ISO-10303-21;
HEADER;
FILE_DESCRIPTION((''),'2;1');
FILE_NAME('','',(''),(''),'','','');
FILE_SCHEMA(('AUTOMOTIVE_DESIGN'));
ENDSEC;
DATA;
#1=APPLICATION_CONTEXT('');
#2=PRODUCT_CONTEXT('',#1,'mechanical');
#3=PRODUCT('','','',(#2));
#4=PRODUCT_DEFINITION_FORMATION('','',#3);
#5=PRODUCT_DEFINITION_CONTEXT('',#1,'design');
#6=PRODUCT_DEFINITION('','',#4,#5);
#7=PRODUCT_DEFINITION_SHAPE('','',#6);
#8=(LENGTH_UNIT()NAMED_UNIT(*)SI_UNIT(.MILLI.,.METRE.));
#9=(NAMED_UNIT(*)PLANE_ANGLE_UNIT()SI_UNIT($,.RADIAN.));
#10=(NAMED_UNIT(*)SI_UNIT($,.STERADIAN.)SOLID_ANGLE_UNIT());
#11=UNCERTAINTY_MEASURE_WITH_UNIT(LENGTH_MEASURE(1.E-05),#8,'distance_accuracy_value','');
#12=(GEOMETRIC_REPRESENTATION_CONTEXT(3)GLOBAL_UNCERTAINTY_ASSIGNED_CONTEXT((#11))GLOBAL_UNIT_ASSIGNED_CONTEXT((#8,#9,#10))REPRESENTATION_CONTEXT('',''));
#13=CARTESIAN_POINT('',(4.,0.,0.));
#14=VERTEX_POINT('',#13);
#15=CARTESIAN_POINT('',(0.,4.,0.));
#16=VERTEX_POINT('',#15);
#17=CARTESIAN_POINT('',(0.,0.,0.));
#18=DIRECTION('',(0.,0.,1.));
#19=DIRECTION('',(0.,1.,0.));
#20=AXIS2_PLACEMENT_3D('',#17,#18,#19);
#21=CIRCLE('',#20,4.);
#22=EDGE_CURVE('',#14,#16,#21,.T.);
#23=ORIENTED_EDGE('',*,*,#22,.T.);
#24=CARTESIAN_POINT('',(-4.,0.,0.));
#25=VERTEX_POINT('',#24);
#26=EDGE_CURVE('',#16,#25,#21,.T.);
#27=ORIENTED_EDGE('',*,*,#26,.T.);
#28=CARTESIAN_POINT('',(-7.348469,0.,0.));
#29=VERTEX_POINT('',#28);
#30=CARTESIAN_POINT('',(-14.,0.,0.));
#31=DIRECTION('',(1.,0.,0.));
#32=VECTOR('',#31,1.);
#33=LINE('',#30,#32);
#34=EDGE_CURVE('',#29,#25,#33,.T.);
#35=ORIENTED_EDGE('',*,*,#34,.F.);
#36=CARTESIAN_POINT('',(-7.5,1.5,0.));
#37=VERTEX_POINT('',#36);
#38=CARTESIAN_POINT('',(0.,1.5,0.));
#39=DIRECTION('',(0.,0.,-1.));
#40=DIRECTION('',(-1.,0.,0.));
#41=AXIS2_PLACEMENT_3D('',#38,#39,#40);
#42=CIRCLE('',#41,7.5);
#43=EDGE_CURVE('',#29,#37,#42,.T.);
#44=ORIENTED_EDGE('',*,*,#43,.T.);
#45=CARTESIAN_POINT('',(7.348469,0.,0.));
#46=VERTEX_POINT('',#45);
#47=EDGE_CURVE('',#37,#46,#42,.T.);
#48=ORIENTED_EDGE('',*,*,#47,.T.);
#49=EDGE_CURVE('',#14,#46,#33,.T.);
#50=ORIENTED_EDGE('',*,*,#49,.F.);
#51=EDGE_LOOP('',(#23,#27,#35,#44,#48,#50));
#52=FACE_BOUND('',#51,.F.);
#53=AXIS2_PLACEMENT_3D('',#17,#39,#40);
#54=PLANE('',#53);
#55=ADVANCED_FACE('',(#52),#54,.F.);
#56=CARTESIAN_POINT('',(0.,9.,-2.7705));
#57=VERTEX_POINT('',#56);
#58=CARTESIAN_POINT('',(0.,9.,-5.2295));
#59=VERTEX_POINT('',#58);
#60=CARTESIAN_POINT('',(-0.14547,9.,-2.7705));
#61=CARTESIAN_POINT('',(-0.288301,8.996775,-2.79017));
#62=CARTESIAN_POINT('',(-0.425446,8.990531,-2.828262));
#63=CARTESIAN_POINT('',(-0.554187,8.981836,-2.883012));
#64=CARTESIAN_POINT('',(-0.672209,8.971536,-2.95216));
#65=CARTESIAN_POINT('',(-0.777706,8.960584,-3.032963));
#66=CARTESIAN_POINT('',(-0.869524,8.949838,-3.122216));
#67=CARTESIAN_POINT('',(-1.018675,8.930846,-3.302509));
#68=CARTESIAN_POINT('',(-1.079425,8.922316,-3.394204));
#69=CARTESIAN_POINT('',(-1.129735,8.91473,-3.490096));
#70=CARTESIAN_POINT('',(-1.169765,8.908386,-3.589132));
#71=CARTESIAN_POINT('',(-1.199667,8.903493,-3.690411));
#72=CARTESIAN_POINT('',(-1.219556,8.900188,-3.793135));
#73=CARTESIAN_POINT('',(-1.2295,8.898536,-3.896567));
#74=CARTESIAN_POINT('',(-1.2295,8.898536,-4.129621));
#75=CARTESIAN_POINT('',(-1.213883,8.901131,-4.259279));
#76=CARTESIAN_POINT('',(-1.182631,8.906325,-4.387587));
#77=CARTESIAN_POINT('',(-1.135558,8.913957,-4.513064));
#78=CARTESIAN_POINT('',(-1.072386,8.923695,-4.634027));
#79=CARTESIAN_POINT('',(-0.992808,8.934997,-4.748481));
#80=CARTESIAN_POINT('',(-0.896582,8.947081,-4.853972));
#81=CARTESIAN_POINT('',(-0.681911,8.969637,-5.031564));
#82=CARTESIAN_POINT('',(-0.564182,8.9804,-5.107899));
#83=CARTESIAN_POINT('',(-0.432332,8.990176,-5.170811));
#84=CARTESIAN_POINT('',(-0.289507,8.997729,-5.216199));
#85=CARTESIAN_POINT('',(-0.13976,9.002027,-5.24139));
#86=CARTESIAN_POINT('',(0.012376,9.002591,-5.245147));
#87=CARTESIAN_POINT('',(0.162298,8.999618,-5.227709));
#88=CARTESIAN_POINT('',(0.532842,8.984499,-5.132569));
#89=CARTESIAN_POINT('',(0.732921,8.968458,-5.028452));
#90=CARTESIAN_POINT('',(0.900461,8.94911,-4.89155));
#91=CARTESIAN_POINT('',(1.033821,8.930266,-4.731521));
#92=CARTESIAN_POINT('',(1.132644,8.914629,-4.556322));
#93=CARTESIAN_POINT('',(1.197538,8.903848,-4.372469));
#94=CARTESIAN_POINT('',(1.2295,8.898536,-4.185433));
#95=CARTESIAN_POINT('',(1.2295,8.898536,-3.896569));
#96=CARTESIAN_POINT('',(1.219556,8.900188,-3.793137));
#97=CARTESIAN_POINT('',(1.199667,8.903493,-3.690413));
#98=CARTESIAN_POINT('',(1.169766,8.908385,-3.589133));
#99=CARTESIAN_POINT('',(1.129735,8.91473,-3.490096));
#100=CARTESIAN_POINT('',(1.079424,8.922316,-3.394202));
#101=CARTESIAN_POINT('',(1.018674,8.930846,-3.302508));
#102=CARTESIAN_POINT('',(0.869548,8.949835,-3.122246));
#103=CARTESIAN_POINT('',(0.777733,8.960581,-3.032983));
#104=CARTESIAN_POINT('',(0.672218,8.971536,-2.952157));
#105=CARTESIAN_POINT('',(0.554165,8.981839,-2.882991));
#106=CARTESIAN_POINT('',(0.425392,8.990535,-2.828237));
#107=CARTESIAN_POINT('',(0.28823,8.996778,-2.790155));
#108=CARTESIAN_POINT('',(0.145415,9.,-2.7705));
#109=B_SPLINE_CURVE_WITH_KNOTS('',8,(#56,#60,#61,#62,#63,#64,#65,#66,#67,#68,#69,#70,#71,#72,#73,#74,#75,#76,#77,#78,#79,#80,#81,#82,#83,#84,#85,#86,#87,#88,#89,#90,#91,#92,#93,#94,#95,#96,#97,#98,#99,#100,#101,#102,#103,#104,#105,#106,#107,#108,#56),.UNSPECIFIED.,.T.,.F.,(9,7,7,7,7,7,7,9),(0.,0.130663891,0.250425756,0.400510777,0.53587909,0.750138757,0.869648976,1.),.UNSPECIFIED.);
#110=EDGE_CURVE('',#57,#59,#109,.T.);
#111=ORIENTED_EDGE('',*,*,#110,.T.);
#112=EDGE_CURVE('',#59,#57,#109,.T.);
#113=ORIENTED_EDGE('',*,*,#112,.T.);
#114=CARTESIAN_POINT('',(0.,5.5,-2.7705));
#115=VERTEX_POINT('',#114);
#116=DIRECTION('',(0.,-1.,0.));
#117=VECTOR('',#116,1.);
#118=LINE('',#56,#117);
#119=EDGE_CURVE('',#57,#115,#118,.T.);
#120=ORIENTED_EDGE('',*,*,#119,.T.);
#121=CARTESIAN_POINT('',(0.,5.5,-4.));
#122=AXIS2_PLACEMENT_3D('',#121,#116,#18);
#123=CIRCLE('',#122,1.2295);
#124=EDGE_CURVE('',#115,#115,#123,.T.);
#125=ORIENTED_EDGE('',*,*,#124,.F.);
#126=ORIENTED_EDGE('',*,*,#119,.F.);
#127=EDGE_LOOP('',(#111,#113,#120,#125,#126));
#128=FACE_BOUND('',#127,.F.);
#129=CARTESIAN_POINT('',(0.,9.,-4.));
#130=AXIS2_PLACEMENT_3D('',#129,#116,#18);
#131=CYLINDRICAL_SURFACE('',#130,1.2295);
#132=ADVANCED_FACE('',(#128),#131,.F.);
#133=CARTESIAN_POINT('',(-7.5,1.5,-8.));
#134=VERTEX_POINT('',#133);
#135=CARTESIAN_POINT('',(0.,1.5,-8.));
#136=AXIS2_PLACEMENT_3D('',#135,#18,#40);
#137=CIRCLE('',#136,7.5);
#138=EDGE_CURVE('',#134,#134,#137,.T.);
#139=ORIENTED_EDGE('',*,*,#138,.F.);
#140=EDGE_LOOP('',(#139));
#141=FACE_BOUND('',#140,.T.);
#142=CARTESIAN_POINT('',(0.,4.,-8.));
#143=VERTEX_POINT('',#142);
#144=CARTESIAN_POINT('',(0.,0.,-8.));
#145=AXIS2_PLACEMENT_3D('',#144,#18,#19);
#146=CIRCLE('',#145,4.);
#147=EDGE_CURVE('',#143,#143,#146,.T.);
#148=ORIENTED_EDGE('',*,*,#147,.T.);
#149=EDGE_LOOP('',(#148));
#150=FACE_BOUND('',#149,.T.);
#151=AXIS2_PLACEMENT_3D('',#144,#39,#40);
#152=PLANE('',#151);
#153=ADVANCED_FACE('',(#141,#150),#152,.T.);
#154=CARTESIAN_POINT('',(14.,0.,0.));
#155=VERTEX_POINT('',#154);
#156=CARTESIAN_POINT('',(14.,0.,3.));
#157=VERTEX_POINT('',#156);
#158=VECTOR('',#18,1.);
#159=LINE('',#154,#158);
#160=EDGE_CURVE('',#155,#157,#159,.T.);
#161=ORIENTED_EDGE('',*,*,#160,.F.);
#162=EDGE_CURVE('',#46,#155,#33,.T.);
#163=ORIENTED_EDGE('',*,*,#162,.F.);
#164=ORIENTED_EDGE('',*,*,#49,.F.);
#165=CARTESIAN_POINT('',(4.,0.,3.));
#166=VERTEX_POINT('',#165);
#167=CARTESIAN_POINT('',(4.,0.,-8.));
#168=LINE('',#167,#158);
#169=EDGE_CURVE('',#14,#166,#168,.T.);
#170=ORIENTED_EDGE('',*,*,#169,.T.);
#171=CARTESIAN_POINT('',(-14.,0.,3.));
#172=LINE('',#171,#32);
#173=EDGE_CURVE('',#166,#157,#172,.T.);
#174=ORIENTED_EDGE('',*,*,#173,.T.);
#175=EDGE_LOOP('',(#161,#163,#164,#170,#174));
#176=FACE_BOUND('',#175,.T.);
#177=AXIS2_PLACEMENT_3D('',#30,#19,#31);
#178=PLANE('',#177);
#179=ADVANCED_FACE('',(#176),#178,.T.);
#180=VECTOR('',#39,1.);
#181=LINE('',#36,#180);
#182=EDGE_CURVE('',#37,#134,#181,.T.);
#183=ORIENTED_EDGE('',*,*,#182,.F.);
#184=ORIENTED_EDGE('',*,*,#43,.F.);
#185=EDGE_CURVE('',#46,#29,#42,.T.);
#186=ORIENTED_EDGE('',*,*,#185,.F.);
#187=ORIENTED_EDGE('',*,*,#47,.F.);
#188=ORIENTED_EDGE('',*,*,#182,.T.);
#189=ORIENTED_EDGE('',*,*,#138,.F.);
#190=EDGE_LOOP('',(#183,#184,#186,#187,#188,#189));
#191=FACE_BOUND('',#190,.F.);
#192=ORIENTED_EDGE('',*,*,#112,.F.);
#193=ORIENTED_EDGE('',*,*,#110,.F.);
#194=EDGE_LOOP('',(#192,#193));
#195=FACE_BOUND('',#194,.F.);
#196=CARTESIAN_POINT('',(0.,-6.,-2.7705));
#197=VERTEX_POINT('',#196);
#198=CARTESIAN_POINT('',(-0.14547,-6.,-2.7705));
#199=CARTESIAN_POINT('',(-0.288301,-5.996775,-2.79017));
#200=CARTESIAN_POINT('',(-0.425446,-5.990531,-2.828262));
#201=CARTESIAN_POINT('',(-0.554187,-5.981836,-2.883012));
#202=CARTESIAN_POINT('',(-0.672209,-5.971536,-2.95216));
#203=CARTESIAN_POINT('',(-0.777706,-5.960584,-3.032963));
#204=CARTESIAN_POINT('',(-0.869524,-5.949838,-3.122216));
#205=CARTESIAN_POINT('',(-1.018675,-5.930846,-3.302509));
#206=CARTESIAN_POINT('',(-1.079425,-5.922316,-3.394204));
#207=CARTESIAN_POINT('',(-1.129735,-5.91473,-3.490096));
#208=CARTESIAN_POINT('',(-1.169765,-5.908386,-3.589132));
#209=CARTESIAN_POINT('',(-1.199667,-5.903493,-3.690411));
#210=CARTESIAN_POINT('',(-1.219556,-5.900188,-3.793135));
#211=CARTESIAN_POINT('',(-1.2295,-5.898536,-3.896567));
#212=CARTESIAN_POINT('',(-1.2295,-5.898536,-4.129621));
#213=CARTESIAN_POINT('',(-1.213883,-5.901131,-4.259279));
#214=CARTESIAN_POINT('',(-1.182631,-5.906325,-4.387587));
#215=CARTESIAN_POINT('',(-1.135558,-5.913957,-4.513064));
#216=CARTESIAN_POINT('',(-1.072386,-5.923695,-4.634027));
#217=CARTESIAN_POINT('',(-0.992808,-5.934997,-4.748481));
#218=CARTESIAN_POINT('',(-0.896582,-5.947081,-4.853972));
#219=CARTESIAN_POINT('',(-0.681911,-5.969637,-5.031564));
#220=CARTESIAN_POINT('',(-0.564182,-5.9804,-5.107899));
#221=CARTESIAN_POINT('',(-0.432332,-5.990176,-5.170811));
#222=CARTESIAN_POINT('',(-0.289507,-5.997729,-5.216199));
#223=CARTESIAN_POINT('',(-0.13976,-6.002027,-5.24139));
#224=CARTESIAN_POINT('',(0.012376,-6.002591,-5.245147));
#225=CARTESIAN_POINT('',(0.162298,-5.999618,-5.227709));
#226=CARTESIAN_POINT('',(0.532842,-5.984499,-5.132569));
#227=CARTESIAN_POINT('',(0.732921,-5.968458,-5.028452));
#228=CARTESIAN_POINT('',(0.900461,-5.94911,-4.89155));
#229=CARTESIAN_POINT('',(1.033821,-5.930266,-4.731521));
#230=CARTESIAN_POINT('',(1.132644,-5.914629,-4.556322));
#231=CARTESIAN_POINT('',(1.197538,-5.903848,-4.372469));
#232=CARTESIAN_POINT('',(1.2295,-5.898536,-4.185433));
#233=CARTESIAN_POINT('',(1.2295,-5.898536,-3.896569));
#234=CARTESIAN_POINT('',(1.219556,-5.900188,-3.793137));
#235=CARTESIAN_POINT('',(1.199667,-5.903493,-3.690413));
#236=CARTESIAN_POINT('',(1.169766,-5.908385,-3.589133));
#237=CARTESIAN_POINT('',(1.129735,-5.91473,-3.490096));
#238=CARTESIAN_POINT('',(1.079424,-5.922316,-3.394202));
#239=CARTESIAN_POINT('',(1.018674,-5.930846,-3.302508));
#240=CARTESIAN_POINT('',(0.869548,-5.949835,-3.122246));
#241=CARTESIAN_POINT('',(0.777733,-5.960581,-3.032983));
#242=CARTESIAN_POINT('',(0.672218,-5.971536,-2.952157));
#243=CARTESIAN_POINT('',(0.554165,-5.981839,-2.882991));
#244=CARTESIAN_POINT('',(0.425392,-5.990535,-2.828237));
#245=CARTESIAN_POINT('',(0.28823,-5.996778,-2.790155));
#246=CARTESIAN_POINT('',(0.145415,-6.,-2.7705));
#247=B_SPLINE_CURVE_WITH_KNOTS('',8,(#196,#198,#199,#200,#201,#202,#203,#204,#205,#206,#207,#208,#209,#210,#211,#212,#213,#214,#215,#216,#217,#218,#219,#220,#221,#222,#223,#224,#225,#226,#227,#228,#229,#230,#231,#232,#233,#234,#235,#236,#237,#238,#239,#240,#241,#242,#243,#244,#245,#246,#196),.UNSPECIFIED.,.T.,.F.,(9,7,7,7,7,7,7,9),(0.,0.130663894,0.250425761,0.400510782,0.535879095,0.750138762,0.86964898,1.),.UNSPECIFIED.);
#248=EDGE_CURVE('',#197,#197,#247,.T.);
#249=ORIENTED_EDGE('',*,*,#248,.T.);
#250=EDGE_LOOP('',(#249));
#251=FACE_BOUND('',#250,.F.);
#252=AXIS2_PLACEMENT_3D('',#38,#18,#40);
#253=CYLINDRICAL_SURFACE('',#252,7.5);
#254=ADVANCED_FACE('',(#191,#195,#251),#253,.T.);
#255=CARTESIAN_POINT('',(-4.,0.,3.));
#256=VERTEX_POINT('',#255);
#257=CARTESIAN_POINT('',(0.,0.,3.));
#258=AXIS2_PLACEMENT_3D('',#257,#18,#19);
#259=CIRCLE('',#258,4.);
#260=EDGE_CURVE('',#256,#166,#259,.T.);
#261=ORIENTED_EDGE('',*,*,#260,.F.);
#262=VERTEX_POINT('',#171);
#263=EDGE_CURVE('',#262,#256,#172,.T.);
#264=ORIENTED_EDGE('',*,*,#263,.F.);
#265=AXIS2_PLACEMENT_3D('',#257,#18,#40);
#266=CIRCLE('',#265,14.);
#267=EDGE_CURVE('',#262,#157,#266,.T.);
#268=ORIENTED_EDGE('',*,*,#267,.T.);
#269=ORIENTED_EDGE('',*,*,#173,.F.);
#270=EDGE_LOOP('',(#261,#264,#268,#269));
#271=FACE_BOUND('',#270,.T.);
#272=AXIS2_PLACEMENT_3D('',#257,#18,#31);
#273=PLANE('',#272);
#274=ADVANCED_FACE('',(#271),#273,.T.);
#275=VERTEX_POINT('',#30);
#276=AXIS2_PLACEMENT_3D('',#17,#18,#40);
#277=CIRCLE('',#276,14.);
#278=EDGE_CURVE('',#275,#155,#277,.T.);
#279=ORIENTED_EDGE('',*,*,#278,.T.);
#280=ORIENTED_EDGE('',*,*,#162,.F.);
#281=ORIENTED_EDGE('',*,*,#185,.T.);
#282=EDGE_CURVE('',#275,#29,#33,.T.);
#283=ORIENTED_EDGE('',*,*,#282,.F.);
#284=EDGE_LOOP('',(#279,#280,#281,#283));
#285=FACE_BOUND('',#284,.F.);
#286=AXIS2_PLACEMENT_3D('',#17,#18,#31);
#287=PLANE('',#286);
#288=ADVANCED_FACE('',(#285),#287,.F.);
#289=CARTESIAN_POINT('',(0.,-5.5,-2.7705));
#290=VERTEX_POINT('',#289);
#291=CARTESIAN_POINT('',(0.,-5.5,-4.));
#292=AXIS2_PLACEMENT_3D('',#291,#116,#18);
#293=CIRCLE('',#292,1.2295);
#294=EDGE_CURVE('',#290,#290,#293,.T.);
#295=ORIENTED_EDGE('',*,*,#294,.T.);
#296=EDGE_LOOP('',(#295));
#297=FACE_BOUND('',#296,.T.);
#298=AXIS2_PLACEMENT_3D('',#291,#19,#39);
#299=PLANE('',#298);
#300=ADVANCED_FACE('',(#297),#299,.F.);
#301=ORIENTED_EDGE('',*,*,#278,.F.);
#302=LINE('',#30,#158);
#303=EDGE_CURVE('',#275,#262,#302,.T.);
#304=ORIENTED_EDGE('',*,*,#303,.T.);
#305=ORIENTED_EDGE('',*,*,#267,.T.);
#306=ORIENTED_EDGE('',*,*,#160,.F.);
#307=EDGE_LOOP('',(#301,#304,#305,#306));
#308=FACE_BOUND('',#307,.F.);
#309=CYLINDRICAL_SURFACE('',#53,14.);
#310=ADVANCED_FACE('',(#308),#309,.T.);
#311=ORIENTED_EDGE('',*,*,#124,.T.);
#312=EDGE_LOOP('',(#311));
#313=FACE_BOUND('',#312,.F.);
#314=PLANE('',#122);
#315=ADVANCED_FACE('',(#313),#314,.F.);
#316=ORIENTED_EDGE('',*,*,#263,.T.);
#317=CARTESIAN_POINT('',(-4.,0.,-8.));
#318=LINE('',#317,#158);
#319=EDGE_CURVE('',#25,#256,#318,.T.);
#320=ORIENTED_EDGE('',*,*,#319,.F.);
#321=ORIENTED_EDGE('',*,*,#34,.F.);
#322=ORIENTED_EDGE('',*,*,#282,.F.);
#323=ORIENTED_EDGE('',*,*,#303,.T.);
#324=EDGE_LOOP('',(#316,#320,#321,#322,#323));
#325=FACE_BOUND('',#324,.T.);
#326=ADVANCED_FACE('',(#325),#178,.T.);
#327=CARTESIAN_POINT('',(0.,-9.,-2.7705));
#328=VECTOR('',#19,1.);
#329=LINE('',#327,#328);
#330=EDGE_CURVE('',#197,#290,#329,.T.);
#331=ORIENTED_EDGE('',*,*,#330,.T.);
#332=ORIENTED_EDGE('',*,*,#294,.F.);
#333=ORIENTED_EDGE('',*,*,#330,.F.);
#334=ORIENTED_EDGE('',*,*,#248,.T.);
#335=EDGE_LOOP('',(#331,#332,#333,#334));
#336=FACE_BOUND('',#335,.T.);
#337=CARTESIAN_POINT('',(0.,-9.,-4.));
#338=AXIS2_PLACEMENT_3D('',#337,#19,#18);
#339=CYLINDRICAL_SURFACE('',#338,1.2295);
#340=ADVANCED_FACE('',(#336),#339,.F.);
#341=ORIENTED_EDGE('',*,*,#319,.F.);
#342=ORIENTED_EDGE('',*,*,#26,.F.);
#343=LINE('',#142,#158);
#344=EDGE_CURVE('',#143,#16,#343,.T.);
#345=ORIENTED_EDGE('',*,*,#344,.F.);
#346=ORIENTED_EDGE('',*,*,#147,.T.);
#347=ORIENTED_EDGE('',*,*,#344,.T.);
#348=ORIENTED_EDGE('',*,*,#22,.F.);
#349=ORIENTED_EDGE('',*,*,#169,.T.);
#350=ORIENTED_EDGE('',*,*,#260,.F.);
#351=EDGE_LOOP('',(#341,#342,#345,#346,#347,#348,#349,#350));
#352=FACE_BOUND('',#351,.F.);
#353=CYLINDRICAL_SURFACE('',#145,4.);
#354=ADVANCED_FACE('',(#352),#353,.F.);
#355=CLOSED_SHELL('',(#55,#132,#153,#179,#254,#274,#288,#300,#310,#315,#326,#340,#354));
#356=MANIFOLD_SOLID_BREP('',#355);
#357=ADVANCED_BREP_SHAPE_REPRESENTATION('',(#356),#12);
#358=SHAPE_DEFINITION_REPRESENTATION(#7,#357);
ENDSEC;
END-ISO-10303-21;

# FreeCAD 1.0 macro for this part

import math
import FreeCAD as App
import Part
import Sketcher

V = App.Vector

doc = App.newDocument("Part")
body = doc.addObject("PartDesign::Body", "Body")

# Sketch on XY plane
sketch1 = body.newObject("Sketcher::SketchObject", "Sketch")
sketch1.AttachmentSupport = (doc.getObject("XY_Plane"), [""])
sketch1.MapMode = "FlatFace"
sketch1.addGeometry([
    Part.LineSegment(V(14, 0, 0), V(-14, 0, 0)),
    Part.ArcOfCircle(Part.Circle(V(0, 0, 0), V(0, 0, 1), 14), math.radians(180), math.radians(360)),
], False)
sketch1.addConstraint([
    Sketcher.Constraint("Coincident", 0, 1, 1, 2),
    Sketcher.Constraint("Coincident", 1, 1, 0, 2),
    Sketcher.Constraint("Horizontal", 0),
    Sketcher.Constraint("Coincident", 1, 3, -1, 1),
    Sketcher.Constraint("PointOnObject", 0, 1, -1),
    Sketcher.Constraint("Radius", 1, 14.0),
])
pad1 = body.newObject("PartDesign::Pad", "Pad")
pad1.Profile = sketch1
pad1.Length = 3

# Sketch on XY plane
sketch2 = body.newObject("Sketcher::SketchObject", "Sketch001")
sketch2.AttachmentSupport = (doc.getObject("XY_Plane"), [""])
sketch2.MapMode = "FlatFace"
sketch2.addGeometry(Part.Circle(V(0, 1.5, 0), V(0, 0, 1), 7.5), False)
sketch2.addConstraint([
    Sketcher.Constraint("PointOnObject", 0, 3, -2),
    Sketcher.Constraint("Diameter", 0, 15.0),
    Sketcher.Constraint("DistanceY", -1, 1, 0, 3, 1.5),
])
pad2 = body.newObject("PartDesign::Pad", "Pad001")
pad2.Profile = sketch2
pad2.Length = 8
pad2.Reversed = True

# Sketch on XY plane
sketch3 = body.newObject("Sketcher::SketchObject", "Sketch002")
sketch3.AttachmentSupport = (doc.getObject("XY_Plane"), [""])
sketch3.MapMode = "FlatFace"
sketch3.AttachmentOffset = App.Placement(V(0, 0, -8), App.Rotation())
sketch3.addGeometry(Part.Circle(V(0, 0, 0), V(0, 0, 1), 4), False)
sketch3.addConstraint([
    Sketcher.Constraint("Coincident", 0, 3, -1, 1),
    Sketcher.Constraint("Diameter", 0, 8.0),
])
doc.recompute()
hole = body.newObject("PartDesign::Hole", "Hole")
hole.Profile = sketch3
hole.ThreadType = "None"
hole.Diameter = 8
hole.DepthType = "Dimension"
hole.Depth = 11
hole.DrillPoint = "Flat"
hole.Reversed = True

# Sketch on XZ plane
sketch4 = body.newObject("Sketcher::SketchObject", "Sketch003")
sketch4.AttachmentSupport = (doc.getObject("XZ_Plane"), [""])
sketch4.MapMode = "FlatFace"
sketch4.AttachmentOffset = App.Placement(V(0, 0, -9), App.Rotation())
sketch4.addGeometry(Part.Circle(V(0, -4, 0), V(0, 0, 1), 1.2295), False)
sketch4.addConstraint([
    Sketcher.Constraint("PointOnObject", 0, 3, -2),
    Sketcher.Constraint("Diameter", 0, 2.459),
    Sketcher.Constraint("DistanceY", 0, 3, -1, 1, 4.0),
])
doc.recompute()
hole2 = body.newObject("PartDesign::Hole", "Hole001")
hole2.Profile = sketch4
hole2.ThreadType = "None"
hole2.Diameter = 2.459
hole2.DepthType = "Dimension"
hole2.Depth = 3.5
hole2.DrillPoint = "Flat"
hole2.Reversed = True
doc.recompute()

mirrored = body.newObject("PartDesign::Mirrored", "Mirrored")
mirrored.Originals = [hole2]
mirrored.MirrorPlane = (doc.getObject("XZ_Plane"), [""])
body.Tip = mirrored

doc.recompute()
